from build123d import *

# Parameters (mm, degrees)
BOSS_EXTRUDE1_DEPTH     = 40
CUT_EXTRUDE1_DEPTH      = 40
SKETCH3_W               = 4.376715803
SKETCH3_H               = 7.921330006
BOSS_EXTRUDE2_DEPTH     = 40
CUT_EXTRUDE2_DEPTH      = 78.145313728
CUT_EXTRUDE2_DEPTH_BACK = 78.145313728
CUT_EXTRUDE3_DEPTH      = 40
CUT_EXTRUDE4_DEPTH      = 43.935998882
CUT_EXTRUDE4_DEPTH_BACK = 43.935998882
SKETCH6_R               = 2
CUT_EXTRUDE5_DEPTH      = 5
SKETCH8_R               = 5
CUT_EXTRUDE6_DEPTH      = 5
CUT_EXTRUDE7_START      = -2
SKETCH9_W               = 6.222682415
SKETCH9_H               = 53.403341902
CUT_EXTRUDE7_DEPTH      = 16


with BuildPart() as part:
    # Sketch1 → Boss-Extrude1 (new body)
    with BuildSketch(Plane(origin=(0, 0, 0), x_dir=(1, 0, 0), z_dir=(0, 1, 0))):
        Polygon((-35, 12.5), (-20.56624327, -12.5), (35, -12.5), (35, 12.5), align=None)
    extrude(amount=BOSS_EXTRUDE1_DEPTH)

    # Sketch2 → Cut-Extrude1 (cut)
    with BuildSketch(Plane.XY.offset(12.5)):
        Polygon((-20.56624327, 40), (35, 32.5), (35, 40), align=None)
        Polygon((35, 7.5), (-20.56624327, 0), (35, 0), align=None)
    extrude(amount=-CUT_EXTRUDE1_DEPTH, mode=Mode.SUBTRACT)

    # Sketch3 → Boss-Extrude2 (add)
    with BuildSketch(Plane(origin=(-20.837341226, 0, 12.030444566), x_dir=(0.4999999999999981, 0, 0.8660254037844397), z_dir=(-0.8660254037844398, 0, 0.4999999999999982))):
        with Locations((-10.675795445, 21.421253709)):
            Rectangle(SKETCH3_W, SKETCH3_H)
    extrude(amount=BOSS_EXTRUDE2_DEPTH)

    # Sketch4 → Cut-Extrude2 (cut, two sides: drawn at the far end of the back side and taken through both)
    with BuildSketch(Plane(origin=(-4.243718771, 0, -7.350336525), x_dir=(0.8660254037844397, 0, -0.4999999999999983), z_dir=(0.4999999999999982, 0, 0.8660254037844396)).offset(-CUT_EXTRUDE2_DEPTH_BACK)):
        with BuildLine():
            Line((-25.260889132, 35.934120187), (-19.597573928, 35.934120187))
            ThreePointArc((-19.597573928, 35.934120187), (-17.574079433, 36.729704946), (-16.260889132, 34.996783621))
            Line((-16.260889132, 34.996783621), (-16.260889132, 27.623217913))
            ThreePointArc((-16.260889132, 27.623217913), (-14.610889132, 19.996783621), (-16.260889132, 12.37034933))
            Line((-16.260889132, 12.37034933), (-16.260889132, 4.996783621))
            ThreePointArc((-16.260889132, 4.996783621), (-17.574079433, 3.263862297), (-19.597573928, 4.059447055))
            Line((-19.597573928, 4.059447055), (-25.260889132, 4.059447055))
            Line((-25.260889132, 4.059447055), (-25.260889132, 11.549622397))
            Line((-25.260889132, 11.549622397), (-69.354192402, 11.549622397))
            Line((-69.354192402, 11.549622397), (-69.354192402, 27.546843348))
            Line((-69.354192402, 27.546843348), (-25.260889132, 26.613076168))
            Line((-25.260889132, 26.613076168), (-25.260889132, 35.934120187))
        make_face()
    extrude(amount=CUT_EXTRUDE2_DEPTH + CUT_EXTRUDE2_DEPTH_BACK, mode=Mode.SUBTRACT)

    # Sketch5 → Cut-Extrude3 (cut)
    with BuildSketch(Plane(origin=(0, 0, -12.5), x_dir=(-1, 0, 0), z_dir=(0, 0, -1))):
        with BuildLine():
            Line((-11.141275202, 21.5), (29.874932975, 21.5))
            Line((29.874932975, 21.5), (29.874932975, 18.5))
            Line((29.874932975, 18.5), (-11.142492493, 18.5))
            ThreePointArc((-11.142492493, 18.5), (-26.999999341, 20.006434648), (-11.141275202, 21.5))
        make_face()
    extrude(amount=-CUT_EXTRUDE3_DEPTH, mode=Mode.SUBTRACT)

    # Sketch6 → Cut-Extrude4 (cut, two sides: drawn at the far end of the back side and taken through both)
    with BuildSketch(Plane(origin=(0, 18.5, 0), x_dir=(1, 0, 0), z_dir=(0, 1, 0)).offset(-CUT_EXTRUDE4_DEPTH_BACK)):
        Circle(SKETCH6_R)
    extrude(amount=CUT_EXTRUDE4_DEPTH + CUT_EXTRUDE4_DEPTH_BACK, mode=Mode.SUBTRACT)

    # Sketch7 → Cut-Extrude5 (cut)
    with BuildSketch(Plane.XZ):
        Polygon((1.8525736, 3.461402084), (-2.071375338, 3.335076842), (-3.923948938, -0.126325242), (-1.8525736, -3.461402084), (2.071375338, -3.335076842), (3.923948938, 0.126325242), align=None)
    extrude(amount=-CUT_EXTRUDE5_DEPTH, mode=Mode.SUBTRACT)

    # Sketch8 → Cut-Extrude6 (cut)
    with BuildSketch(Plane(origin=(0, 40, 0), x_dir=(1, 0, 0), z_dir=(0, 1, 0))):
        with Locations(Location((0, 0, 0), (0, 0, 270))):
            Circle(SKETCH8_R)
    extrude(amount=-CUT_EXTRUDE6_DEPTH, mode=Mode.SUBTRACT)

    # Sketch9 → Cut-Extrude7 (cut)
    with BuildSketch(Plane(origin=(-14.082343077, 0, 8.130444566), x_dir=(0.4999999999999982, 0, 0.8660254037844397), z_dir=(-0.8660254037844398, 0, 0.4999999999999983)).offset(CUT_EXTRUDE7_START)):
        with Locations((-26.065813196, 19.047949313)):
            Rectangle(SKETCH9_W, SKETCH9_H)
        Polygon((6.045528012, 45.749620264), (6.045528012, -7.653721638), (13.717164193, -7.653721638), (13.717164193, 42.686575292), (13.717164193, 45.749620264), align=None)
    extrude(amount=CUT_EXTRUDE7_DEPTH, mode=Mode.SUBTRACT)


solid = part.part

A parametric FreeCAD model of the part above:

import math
import FreeCAD as App
import Part
import Sketcher

V = App.Vector
Q = App.Units.Quantity

doc = App.newDocument("Part")
params = doc.addObject("Spreadsheet::Sheet", "Params")
for row, (alias, value) in enumerate([
    ("sketch1_width", "70 mm"),
    ("sketch1_height", "25 mm"),
    ("pad1_length", "40 mm"),
    ("sketch2_height", "7.5 mm"),
    ("pocket1_length", "40 mm"),
    ("pad2_length", "40 mm"),
    ("sketch4_radius", "1.8 mm"),
    ("sketch4_radius2", "18.45 mm"),
    ("sketch5_radius", "8 mm"),
    ("sketch5_height", "3 mm"),
    ("pocket3_length", "40 mm"),
    ("sketch6_diameter", "4 mm"),
    ("pocket5_length", "5 mm"),
    ("sketch8_diameter", "10 mm"),
    ("pocket6_length", "5 mm"),
    ("pocket7_length", "16 mm"),
], start=1):
    params.set(f"A{row}", alias)
    params.set(f"B{row}", "=" + value)
    params.setAlias(f"B{row}", alias)

body = doc.addObject("PartDesign::Body", "Body")

sketch1 = doc.addObject("Sketcher::SketchObject", "Sketch")
body.addObject(sketch1)
sketch1.AttachmentSupport = (doc.XZ_Plane, [""])
sketch1.MapMode = "FlatFace"
sketch1.addGeometry([
    Part.LineSegment(V(-35, -12, 0), V(-21, 12, 0)),
    Part.LineSegment(V(-21, 12, 0), V(35, 12, 0)),
    Part.LineSegment(V(35, 12, 0), V(35, -12, 0)),
    Part.LineSegment(V(35, -12, 0), V(-35, -12, 0)),
], False)
sketch1.addConstraint([
    Sketcher.Constraint("Coincident", 0, 2, 1, 1),
    Sketcher.Constraint("Coincident", 1, 2, 2, 1),
    Sketcher.Constraint("Coincident", 2, 2, 3, 1),
    Sketcher.Constraint("Coincident", 3, 2, 0, 1),
    Sketcher.Constraint("Horizontal", 1),
    Sketcher.Constraint("Vertical", 2),
    Sketcher.Constraint("Horizontal", 3),
    Sketcher.Constraint("Symmetric", 1, 2, 3, 2, -1, 1),
    Sketcher.Constraint("DistanceX", 3, 2, 3, 1, Q("70 mm")),
    Sketcher.Constraint("DistanceY", 2, 2, 2, 1, Q("25 mm")),
    Sketcher.Constraint("Angle", 0, Q("60 deg")),
])
sketch1.setExpression("Constraints[8]", "Params.sketch1_width")
sketch1.setExpression("Constraints[9]", "Params.sketch1_height")
pad1 = doc.addObject("PartDesign::Pad", "Pad")
body.addObject(pad1)
pad1.Profile = sketch1
pad1.setExpression("Length", "Params.pad1_length")
pad1.Reversed = True

sketch2 = doc.addObject("Sketcher::SketchObject", "Sketch001")
body.addObject(sketch2)
sketch2.AttachmentSupport = (doc.XY_Plane, [""])
sketch2.MapMode = "FlatFace"
sketch2.AttachmentOffset = App.Placement(V(0, 0, 12.5), App.Rotation())
sketch2.addGeometry([
    Part.LineSegment(V(-21, 40, 0), V(35, 32, 0)),
    Part.LineSegment(V(35, 32, 0), V(35, 40, 0)),
    Part.LineSegment(V(35, 40, 0), V(-21, 40, 0)),
    Part.LineSegment(V(35, 8, 0), V(-21, 0, 0)),
    Part.LineSegment(V(-21, 0, 0), V(35, 0, 0)),
    Part.LineSegment(V(35, 0, 0), V(35, 8, 0)),
], False)
sketch2.addConstraint([
    Sketcher.Constraint("Coincident", 0, 2, 1, 1),
    Sketcher.Constraint("Coincident", 1, 2, 2, 1),
    Sketcher.Constraint("Coincident", 2, 2, 0, 1),
    Sketcher.Constraint("Coincident", 3, 2, 4, 1),
    Sketcher.Constraint("Coincident", 4, 2, 5, 1),
    Sketcher.Constraint("Coincident", 5, 2, 3, 1),
    Sketcher.Constraint("Vertical", 1),
    Sketcher.Constraint("Horizontal", 2),
    Sketcher.Constraint("Horizontal", 4),
    Sketcher.Constraint("Vertical", 5),
    Sketcher.Constraint("PointOnObject", 3, 2, -1),
    Sketcher.Constraint("Vertical", 2, 2, 3, 2),
    Sketcher.Constraint("Vertical", 1, 2, 4, 2),
    Sketcher.Constraint("Equal", 1, 5),
    Sketcher.Constraint("DistanceY", 1, 1, 1, 2, Q("7.5 mm")),
    Sketcher.Constraint("DistanceX", -1, 1, 0, 2, Q("35 mm")),
    Sketcher.Constraint("DistanceY", -1, 1, 1, 2, Q("40 mm")),
    Sketcher.Constraint("Distance", 0, Q("56.070111 mm")),
])
sketch2.setExpression("Constraints[14]", "Params.sketch2_height")
pocket1 = doc.addObject("PartDesign::Pocket", "Pocket")
body.addObject(pocket1)
pocket1.Profile = sketch2
pocket1.setExpression("Length", "Params.pocket1_length")

sketch3 = doc.addObject("Sketcher::SketchObject", "Sketch002")
body.addObject(sketch3)
sketch3.Placement = App.Placement(V(-20.837341, 0, 12.030445), App.Rotation(V(0.5, 0, 0.866025404), V(0, 1, 0), V(-0.866025404, 0, 0.5), "ZXY"))
sketch3.addGeometry([
    Part.LineSegment(V(-12.9, 25.4, 0), V(-12.9, 17.5, 0)),
    Part.LineSegment(V(-12.9, 17.5, 0), V(-8.5, 17.5, 0)),
    Part.LineSegment(V(-8.5, 17.5, 0), V(-8.5, 25.4, 0)),
    Part.LineSegment(V(-8.5, 25.4, 0), V(-12.9, 25.4, 0)),
], False)
sketch3.addConstraint([
    Sketcher.Constraint("Coincident", 0, 2, 1, 1),
    Sketcher.Constraint("Coincident", 1, 2, 2, 1),
    Sketcher.Constraint("Coincident", 2, 2, 3, 1),
    Sketcher.Constraint("Coincident", 3, 2, 0, 1),
    Sketcher.Constraint("Vertical", 0),
    Sketcher.Constraint("Horizontal", 1),
    Sketcher.Constraint("Vertical", 2),
    Sketcher.Constraint("Horizontal", 3),
    Sketcher.Constraint("DistanceY", 0, 2, 0, 1, Q("7.92133 mm")),
    Sketcher.Constraint("DistanceX", 1, 1, 1, 2, Q("4.376716 mm")),
    Sketcher.Constraint("DistanceY", -1, 1, 0, 2, Q("17.460589 mm")),
    Sketcher.Constraint("DistanceX", 0, 2, -1, 1, Q("12.864153 mm")),
])
pad2 = doc.addObject("PartDesign::Pad", "Pad001")
body.addObject(pad2)
pad2.Profile = sketch3
pad2.setExpression("Length", "Params.pad2_length")

sketch4 = doc.addObject("Sketcher::SketchObject", "Sketch003")
body.addObject(sketch4)
sketch4.Placement = App.Placement(V(-4.243719, 0, -7.350337), App.Rotation(V(0.866025404, 0, -0.5), V(0, 1, 0), V(0.5, 0, 0.866025404), "ZXY"))
sketch4.addGeometry([
    Part.LineSegment(V(-19.6, 35.9, 0), V(-25.3, 35.9, 0)),
    Part.LineSegment(V(-25.3, 35.9, 0), V(-25.3, 26.6, 0)),
    Part.LineSegment(V(-25.3, 26.6, 0), V(-69.4, 27.5, 0)),
    Part.LineSegment(V(-69.4, 27.5, 0), V(-69.4, 11.5, 0)),
    Part.LineSegment(V(-69.4, 11.5, 0), V(-25.3, 11.5, 0)),
    Part.LineSegment(V(-25.3, 11.5, 0), V(-25.3, 4.1, 0)),
    Part.LineSegment(V(-25.3, 4.1, 0), V(-19.6, 4.1, 0)),
    Part.ArcOfCircle(Part.Circle(V(-18.1, 5, 0), V(0, 0, 1), 1.8), math.radians(-149), math.radians(0)),
    Part.LineSegment(V(-16.3, 5, 0), V(-16.3, 12.4, 0)),
    Part.ArcOfCircle(Part.Circle(V(-33.1, 20, 0), V(0, 0, 1), 18.5), math.radians(-24), math.radians(24)),
    Part.LineSegment(V(-16.3, 27.6, 0), V(-16.3, 35, 0)),
    Part.ArcOfCircle(Part.Circle(V(-18.1, 35, 0), V(0, 0, 1), 1.8), math.radians(0), math.radians(149)),
], False)
sketch4.addConstraint([
    Sketcher.Constraint("Coincident", 0, 2, 1, 1),
    Sketcher.Constraint("Coincident", 1, 2, 2, 1),
    Sketcher.Constraint("Coincident", 2, 2, 3, 1),
    Sketcher.Constraint("Coincident", 3, 2, 4, 1),
    Sketcher.Constraint("Coincident", 4, 2, 5, 1),
    Sketcher.Constraint("Coincident", 5, 2, 6, 1),
    Sketcher.Constraint("Coincident", 6, 2, 7, 1),
    Sketcher.Constraint("Tangent", 7, 2, 8, 1),
    Sketcher.Constraint("Coincident", 8, 2, 9, 1),
    Sketcher.Constraint("Coincident", 9, 2, 10, 1),
    Sketcher.Constraint("Tangent", 10, 2, 11, 1),
    Sketcher.Constraint("Coincident", 11, 2, 0, 1),
    Sketcher.Constraint("Horizontal", 0),
    Sketcher.Constraint("Vertical", 1),
    Sketcher.Constraint("Vertical", 3),
    Sketcher.Constraint("Horizontal", 4),
    Sketcher.Constraint("Vertical", 5),
    Sketcher.Constraint("Horizontal", 6),
    Sketcher.Constraint("Vertical", 8),
    Sketcher.Constraint("Vertical", 10),
    Sketcher.Constraint("Equal", 7, 11),
    Sketcher.Constraint("Vertical", 7, 3, 11, 3),
    Sketcher.Constraint("Vertical", 1, 2, 4, 2),
    Sketcher.Constraint("Vertical", 6, 2, 11, 2),
    Sketcher.Constraint("Equal", 8, 10),
    Sketcher.Constraint("Radius", 7, Q("1.8 mm")),
    Sketcher.Constraint("Radius", 9, Q("18.45 mm")),
    Sketcher.Constraint("DistanceX", 9, 3, 7, 3, Q("15 mm")),
    Sketcher.Constraint("DistanceY", 7, 3, 9, 3, Q("15 mm")),
    Sketcher.Constraint("DistanceX", 5, 2, 7, 2, Q("9 mm")),
    Sketcher.Constraint("DistanceY", 3, 2, 3, 1, Q("15.997221 mm")),
    Sketcher.Constraint("Distance", 2, Q("44.103189 mm")),
    Sketcher.Constraint("DistanceX", 0, 2, 0, 1, Q("5.663315 mm")),
    Sketcher.Constraint("DistanceX", 4, 1, 4, 2, Q("44.093303 mm")),
    Sketcher.Constraint("DistanceY", 1, 2, 1, 1, Q("9.321044 mm")),
    Sketcher.Constraint("DistanceX", 7, 3, -1, 1, Q("18.060889 mm")),
    Sketcher.Constraint("DistanceY", -1, 1, 0, 2, Q("35.93412 mm")),
])
sketch4.setExpression("Constraints[25]", "Params.sketch4_radius")
sketch4.setExpression("Constraints[26]", "Params.sketch4_radius2")
pocket2 = doc.addObject("PartDesign::Pocket", "Pocket001")
body.addObject(pocket2)
pocket2.Profile = sketch4
pocket2.Type = "ThroughAll"
pocket2.Midplane = True

sketch5 = doc.addObject("Sketcher::SketchObject", "Sketch004")
body.addObject(sketch5)
sketch5.AttachmentSupport = (doc.XY_Plane, [""])
sketch5.MapMode = "FlatFace"
sketch5.AttachmentOffset = App.Placement(V(0, 0, -12.5), App.Rotation())
sketch5.addGeometry([
    Part.LineSegment(V(-29.9, 21.5, 0), V(11.1, 21.5, 0)),
    Part.ArcOfCircle(Part.Circle(V(19, 20, 0), V(0, 0, 1), 8), math.radians(-169), math.radians(169)),
    Part.LineSegment(V(11.1, 18.5, 0), V(-29.9, 18.5, 0)),
    Part.LineSegment(V(-29.9, 18.5, 0), V(-29.9, 21.5, 0)),
], False)
sketch5.addConstraint([
    Sketcher.Constraint("Coincident", 0, 2, 1, 2),
    Sketcher.Constraint("Coincident", 1, 1, 2, 1),
    Sketcher.Constraint("Coincident", 2, 2, 3, 1),
    Sketcher.Constraint("Coincident", 3, 2, 0, 1),
    Sketcher.Constraint("Horizontal", 0),
    Sketcher.Constraint("Horizontal", 2),
    Sketcher.Constraint("Vertical", 3),
    Sketcher.Constraint("Radius", 1, Q("8 mm")),
    Sketcher.Constraint("DistanceY", 3, 1, 3, 2, Q("3 mm")),
    Sketcher.Constraint("DistanceX", -1, 1, 1, 3, Q("19 mm")),
    Sketcher.Constraint("DistanceY", -1, 1, 0, 2, Q("21.5 mm")),
    Sketcher.Constraint("DistanceX", 0, 1, 0, 2, Q("41.016208 mm")),
    Sketcher.Constraint("DistanceX", 2, 2, 2, 1, Q("41.017425 mm")),
])
sketch5.setExpression("Constraints[7]", "Params.sketch5_radius")
sketch5.setExpression("Constraints[8]", "Params.sketch5_height")
pocket3 = doc.addObject("PartDesign::Pocket", "Pocket002")
body.addObject(pocket3)
pocket3.Profile = sketch5
pocket3.setExpression("Length", "Params.pocket3_length")
pocket3.Reversed = True

sketch6 = doc.addObject("Sketcher::SketchObject", "Sketch005")
body.addObject(sketch6)
sketch6.AttachmentSupport = (doc.XZ_Plane, [""])
sketch6.MapMode = "FlatFace"
sketch6.AttachmentOffset = App.Placement(V(0, 0, -18.5), App.Rotation())
sketch6.addGeometry(Part.Circle(V(0, 0, 0), V(0, 0, 1), 2), False)
sketch6.addConstraint([
    Sketcher.Constraint("Coincident", 0, 3, -1, 1),
    Sketcher.Constraint("Diameter", 0, Q("4 mm")),
])
sketch6.setExpression("Constraints[1]", "Params.sketch6_diameter")
pocket4 = doc.addObject("PartDesign::Pocket", "Pocket003")
body.addObject(pocket4)
pocket4.Profile = sketch6
pocket4.Type = "ThroughAll"
pocket4.Midplane = True

sketch7 = doc.addObject("Sketcher::SketchObject", "Sketch006")
body.addObject(sketch7)
sketch7.AttachmentSupport = (doc.XZ_Plane, [""])
sketch7.MapMode = "FlatFace"
sketch7.addGeometry([
    Part.LineSegment(V(1.9, 3.5, 0), V(-2.1, 3.3, 0)),
    Part.LineSegment(V(-2.1, 3.3, 0), V(-3.9, -0.1, 0)),
    Part.LineSegment(V(-3.9, -0.1, 0), V(-1.9, -3.5, 0)),
    Part.LineSegment(V(-1.9, -3.5, 0), V(2.1, -3.3, 0)),
    Part.LineSegment(V(2.1, -3.3, 0), V(3.9, 0.1, 0)),
    Part.LineSegment(V(3.9, 0.1, 0), V(1.9, 3.5, 0)),
], False)
sketch7.addConstraint([
    Sketcher.Constraint("Coincident", 0, 2, 1, 1),
    Sketcher.Constraint("Coincident", 1, 2, 2, 1),
    Sketcher.Constraint("Coincident", 2, 2, 3, 1),
    Sketcher.Constraint("Coincident", 3, 2, 4, 1),
    Sketcher.Constraint("Coincident", 4, 2, 5, 1),
    Sketcher.Constraint("Coincident", 5, 2, 0, 1),
    Sketcher.Constraint("Symmetric", 0, 2, 3, 2, -1, 1),
    Sketcher.Constraint("Symmetric", 1, 2, 4, 2, -1, 1),
    Sketcher.Constraint("Symmetric", 2, 2, 5, 2, -1, 1),
    Sketcher.Constraint("Equal", 0, 1),
    Sketcher.Constraint("Equal", 1, 2),
    Sketcher.Constraint("DistanceX", 0, 2, 2, 2, Q("0.218802 mm")),
    Sketcher.Constraint("Distance", 0, Q("3.925982 mm")),
    Sketcher.Constraint("DistanceX", 1, 2, -1, 1, Q("3.923949 mm")),
    Sketcher.Constraint("DistanceY", 2, 2, 0, 2, Q("6.796479 mm")),
])
pocket5 = doc.addObject("PartDesign::Pocket", "Pocket004")
body.addObject(pocket5)
pocket5.Profile = sketch7
pocket5.setExpression("Length", "Params.pocket5_length")

sketch8 = doc.addObject("Sketcher::SketchObject", "Sketch007")
body.addObject(sketch8)
sketch8.AttachmentSupport = (doc.XZ_Plane, [""])
sketch8.MapMode = "FlatFace"
sketch8.AttachmentOffset = App.Placement(V(0, 0, -40), App.Rotation())
sketch8.addGeometry(Part.Circle(V(0, 0, 0), V(0, 0, 1), 5), False)
sketch8.addConstraint([
    Sketcher.Constraint("Coincident", 0, 3, -1, 1),
    Sketcher.Constraint("Diameter", 0, Q("10 mm")),
])
sketch8.setExpression("Constraints[1]", "Params.sketch8_diameter")
pocket6 = doc.addObject("PartDesign::Pocket", "Pocket005")
body.addObject(pocket6)
pocket6.Profile = sketch8
pocket6.setExpression("Length", "Params.pocket6_length")
pocket6.Reversed = True

sketch9 = doc.addObject("Sketcher::SketchObject", "Sketch008")
body.addObject(sketch9)
sketch9.Placement = App.Placement(V(-12.350292, 0, 7.130445), App.Rotation(V(0.5, 0, 0.866025404), V(0, 1, 0), V(-0.866025404, 0, 0.5), "ZXY"))
sketch9.addGeometry([
    Part.LineSegment(V(-29, 46, 0), V(-29, -8, 0)),
    Part.LineSegment(V(-29, -8, 0), V(-23, -8, 0)),
    Part.LineSegment(V(-23, -8, 0), V(-23, 46, 0)),
    Part.LineSegment(V(-23, 46, 0), V(-29, 46, 0)),
    Part.LineSegment(V(6, 46, 0), V(6, -8, 0)),
    Part.LineSegment(V(6, -8, 0), V(14, -8, 0)),
    Part.LineSegment(V(14, -8, 0), V(14, 46, 0)),
    Part.LineSegment(V(14, 46, 0), V(6, 46, 0)),
], False)
sketch9.addConstraint([
    Sketcher.Constraint("Coincident", 0, 2, 1, 1),
    Sketcher.Constraint("Coincident", 1, 2, 2, 1),
    Sketcher.Constraint("Coincident", 2, 2, 3, 1),
    Sketcher.Constraint("Coincident", 3, 2, 0, 1),
    Sketcher.Constraint("Coincident", 4, 2, 5, 1),
    Sketcher.Constraint("Coincident", 5, 2, 6, 1),
    Sketcher.Constraint("Coincident", 6, 2, 7, 1),
    Sketcher.Constraint("Coincident", 7, 2, 4, 1),
    Sketcher.Constraint("Vertical", 0),
    Sketcher.Constraint("Horizontal", 1),
    Sketcher.Constraint("Vertical", 2),
    Sketcher.Constraint("Horizontal", 3),
    Sketcher.Constraint("Vertical", 4),
    Sketcher.Constraint("Horizontal", 5),
    Sketcher.Constraint("Vertical", 6),
    Sketcher.Constraint("Horizontal", 7),
    Sketcher.Constraint("Horizontal", 1, 2, 4, 2),
    Sketcher.Constraint("Horizontal", 3, 2, 6, 2),
    Sketcher.Constraint("DistanceX", 1, 2, 4, 2, Q("29 mm")),
    Sketcher.Constraint("DistanceY", 0, 2, 0, 1, Q("53.403342 mm")),
    Sketcher.Constraint("DistanceX", 1, 1, 1, 2, Q("6.222682 mm")),
    Sketcher.Constraint("DistanceX", 5, 1, 5, 2, Q("7.671636 mm")),
    Sketcher.Constraint("DistanceY", 0, 2, -1, 1, Q("7.653722 mm")),
    Sketcher.Constraint("DistanceX", 1, 2, -1, 1, Q("22.954472 mm")),
])
pocket7 = doc.addObject("PartDesign::Pocket", "Pocket006")
body.addObject(pocket7)
pocket7.Profile = sketch9
pocket7.setExpression("Length", "Params.pocket7_length")
pocket7.Reversed = True

doc.recompute()
